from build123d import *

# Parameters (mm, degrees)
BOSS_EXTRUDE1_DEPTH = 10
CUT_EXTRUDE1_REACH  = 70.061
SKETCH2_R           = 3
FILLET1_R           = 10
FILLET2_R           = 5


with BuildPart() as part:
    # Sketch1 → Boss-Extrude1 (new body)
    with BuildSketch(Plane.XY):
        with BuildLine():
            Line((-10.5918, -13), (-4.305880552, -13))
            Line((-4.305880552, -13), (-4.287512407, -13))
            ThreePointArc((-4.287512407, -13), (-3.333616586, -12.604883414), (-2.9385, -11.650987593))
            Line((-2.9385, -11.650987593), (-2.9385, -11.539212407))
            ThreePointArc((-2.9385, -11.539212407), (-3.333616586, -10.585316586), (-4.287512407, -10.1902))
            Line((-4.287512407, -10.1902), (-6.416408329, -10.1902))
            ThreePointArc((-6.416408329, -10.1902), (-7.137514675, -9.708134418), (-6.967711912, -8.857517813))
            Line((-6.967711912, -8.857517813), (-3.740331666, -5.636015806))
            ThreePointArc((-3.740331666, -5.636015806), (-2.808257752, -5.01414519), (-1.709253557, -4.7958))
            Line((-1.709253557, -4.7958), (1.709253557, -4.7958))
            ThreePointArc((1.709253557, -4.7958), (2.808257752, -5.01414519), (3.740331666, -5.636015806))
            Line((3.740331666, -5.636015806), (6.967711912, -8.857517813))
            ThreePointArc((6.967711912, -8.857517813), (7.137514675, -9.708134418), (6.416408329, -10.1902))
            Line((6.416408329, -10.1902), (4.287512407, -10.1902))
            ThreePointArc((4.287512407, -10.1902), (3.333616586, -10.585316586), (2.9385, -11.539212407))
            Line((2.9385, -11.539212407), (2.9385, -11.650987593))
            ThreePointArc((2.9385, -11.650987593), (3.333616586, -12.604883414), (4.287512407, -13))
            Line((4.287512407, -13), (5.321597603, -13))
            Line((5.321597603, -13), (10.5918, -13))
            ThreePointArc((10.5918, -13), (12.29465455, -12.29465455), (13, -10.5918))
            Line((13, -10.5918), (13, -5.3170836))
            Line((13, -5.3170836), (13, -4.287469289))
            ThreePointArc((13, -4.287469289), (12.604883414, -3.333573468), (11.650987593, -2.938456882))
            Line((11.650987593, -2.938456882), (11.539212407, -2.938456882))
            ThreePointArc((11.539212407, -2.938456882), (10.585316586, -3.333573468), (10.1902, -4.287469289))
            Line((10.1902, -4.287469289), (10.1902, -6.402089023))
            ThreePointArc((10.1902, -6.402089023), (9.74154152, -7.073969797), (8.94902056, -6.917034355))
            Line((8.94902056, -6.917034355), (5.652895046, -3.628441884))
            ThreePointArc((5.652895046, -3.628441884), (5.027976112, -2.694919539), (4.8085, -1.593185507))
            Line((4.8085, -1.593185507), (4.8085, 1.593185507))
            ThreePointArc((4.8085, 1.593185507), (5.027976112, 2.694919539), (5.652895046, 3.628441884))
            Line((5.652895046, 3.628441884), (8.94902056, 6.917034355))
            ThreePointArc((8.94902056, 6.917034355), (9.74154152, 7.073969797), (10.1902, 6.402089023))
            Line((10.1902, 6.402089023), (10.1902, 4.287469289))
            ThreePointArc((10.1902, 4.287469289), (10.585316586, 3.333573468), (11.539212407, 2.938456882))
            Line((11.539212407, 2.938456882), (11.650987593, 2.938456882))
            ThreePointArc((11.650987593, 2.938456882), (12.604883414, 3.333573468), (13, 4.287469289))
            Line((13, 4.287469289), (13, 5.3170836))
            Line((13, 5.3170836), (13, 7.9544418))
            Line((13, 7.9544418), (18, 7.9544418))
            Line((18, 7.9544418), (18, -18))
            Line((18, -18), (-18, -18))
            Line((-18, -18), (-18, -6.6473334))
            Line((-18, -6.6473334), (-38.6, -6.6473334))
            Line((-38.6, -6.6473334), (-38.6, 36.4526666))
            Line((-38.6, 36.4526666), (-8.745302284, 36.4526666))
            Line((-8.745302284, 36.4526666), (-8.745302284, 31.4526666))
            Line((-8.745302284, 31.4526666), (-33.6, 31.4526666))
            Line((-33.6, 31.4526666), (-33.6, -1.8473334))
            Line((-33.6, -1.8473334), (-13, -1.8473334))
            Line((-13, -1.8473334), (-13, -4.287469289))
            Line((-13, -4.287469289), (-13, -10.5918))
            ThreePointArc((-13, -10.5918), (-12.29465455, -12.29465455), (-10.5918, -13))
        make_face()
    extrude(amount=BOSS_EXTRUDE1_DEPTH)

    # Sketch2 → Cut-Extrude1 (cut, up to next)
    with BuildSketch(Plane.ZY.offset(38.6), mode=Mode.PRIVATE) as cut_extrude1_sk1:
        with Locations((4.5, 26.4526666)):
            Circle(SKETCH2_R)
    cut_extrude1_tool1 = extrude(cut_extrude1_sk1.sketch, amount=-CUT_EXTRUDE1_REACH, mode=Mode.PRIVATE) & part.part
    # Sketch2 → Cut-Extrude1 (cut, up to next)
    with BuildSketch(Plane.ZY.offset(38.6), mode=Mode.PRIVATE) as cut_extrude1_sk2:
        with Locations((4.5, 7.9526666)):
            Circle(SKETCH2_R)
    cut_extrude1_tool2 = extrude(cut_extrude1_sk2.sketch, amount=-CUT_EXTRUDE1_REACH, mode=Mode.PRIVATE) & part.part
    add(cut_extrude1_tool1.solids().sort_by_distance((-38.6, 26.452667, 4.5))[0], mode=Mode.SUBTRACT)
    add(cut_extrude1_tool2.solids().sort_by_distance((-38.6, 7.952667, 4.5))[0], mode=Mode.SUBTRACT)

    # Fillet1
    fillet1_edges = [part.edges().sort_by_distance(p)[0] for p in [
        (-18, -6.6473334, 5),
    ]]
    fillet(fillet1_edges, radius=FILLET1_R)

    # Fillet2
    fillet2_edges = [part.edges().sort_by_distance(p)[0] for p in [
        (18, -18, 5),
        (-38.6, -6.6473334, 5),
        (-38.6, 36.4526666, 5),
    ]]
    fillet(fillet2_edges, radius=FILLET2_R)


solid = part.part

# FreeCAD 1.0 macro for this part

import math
import FreeCAD as App
import Part
import Sketcher

V = App.Vector
Q = App.Units.Quantity


def edges_at(feature, points):
    """Names of the edges that pass closest to the given points."""
    edges = feature.Shape.Edges
    near = lambda p: min(range(len(edges)), key=lambda i: edges[i].distToShape(Part.Vertex(*p))[0])
    return sorted({f"Edge{near(p) + 1}" for p in points})

doc = App.newDocument("Part")
body = doc.addObject("PartDesign::Body", "Body")

# Sketch on XY plane
sketch1 = body.newObject("Sketcher::SketchObject", "Sketch")
sketch1.AttachmentSupport = (doc.getObject("XY_Plane"), [""])
sketch1.MapMode = "FlatFace"
sketch1.addGeometry(Part.LineSegment(V(-4.29, -13, 0), V(-10.59, -13, 0)), False)
sketch1.addGeometry(Part.ArcOfCircle(Part.Circle(V(-10.59, -10.59, 0), V(0, 0, 1), 2.41), math.radians(-180), math.radians(-90)), False)
sketch1.addGeometry(Part.LineSegment(V(-13, -10.59, 0), V(-13, -1.85, 0)), False)
sketch1.addGeometry(Part.LineSegment(V(-13, -1.85, 0), V(-33.6, -1.85, 0)), False)
sketch1.addGeometry(Part.LineSegment(V(-33.6, -1.85, 0), V(-33.6, 31.45, 0)), False)
sketch1.addGeometry(Part.LineSegment(V(-33.6, 31.45, 0), V(-8.75, 31.45, 0)), False)
sketch1.addGeometry(Part.LineSegment(V(-8.75, 31.45, 0), V(-8.75, 36.45, 0)), False)
sketch1.addGeometry(Part.LineSegment(V(-8.75, 36.45, 0), V(-38.6, 36.45, 0)), False)
sketch1.addGeometry(Part.LineSegment(V(-38.6, 36.45, 0), V(-38.6, -6.65, 0)), False)
sketch1.addGeometry(Part.LineSegment(V(-38.6, -6.65, 0), V(-18, -6.65, 0)), False)
sketch1.addGeometry(Part.LineSegment(V(-18, -6.65, 0), V(-18, -18, 0)), False)
sketch1.addGeometry(Part.LineSegment(V(-18, -18, 0), V(18, -18, 0)), False)
sketch1.addGeometry(Part.LineSegment(V(18, -18, 0), V(18, 7.95, 0)), False)
sketch1.addGeometry(Part.LineSegment(V(18, 7.95, 0), V(13, 7.95, 0)), False)
sketch1.addGeometry(Part.LineSegment(V(13, 7.95, 0), V(13, 4.29, 0)), False)
sketch1.addGeometry(Part.ArcOfCircle(Part.Circle(V(11.65, 4.29, 0), V(0, 0, 1), 1.35), math.radians(-90), math.radians(0)), False)
sketch1.addGeometry(Part.LineSegment(V(11.65, 2.94, 0), V(11.54, 2.94, 0)), False)
sketch1.addGeometry(Part.ArcOfCircle(Part.Circle(V(11.54, 4.29, 0), V(0, 0, 1), 1.35), math.radians(180), math.radians(270)), False)
sketch1.addGeometry(Part.LineSegment(V(10.19, 4.29, 0), V(10.19, 6.4, 0)), False)
sketch1.addGeometry(Part.ArcOfCircle(Part.Circle(V(9.46, 6.4, 0), V(0, 0, 1), 0.73), math.radians(0), math.radians(135)), False)
sketch1.addGeometry(Part.LineSegment(V(8.95, 6.92, 0), V(5.65, 3.63, 0)), False)
sketch1.addGeometry(Part.ArcOfCircle(Part.Circle(V(7.68, 1.59, 0), V(0, 0, 1), 2.88), math.radians(135), math.radians(180)), False)
sketch1.addGeometry(Part.LineSegment(V(4.81, 1.59, 0), V(4.81, -1.59, 0)), False)
sketch1.addGeometry(Part.ArcOfCircle(Part.Circle(V(7.68, -1.59, 0), V(0, 0, 1), 2.88), math.radians(-180), math.radians(-135)), False)
sketch1.addGeometry(Part.LineSegment(V(5.65, -3.63, 0), V(8.95, -6.92, 0)), False)
sketch1.addGeometry(Part.ArcOfCircle(Part.Circle(V(9.46, -6.4, 0), V(0, 0, 1), 0.73), math.radians(-135), math.radians(0)), False)
sketch1.addGeometry(Part.LineSegment(V(10.19, -6.4, 0), V(10.19, -4.29, 0)), False)
sketch1.addGeometry(Part.ArcOfCircle(Part.Circle(V(11.54, -4.29, 0), V(0, 0, 1), 1.35), math.radians(90), math.radians(180)), False)
sketch1.addGeometry(Part.LineSegment(V(11.54, -2.94, 0), V(11.65, -2.94, 0)), False)
sketch1.addGeometry(Part.ArcOfCircle(Part.Circle(V(11.65, -4.29, 0), V(0, 0, 1), 1.35), math.radians(0), math.radians(90)), False)
sketch1.addGeometry(Part.LineSegment(V(13, -4.29, 0), V(13, -10.59, 0)), False)
sketch1.addGeometry(Part.ArcOfCircle(Part.Circle(V(10.59, -10.59, 0), V(0, 0, 1), 2.41), math.radians(-90), math.radians(0)), False)
sketch1.addGeometry(Part.LineSegment(V(10.59, -13, 0), V(4.29, -13, 0)), False)
sketch1.addGeometry(Part.ArcOfCircle(Part.Circle(V(4.29, -11.65, 0), V(0, 0, 1), 1.35), math.radians(180), math.radians(270)), False)
sketch1.addGeometry(Part.LineSegment(V(2.94, -11.65, 0), V(2.94, -11.54, 0)), False)
sketch1.addGeometry(Part.ArcOfCircle(Part.Circle(V(4.29, -11.54, 0), V(0, 0, 1), 1.35), math.radians(90), math.radians(180)), False)
sketch1.addGeometry(Part.LineSegment(V(4.29, -10.19, 0), V(6.42, -10.19, 0)), False)
sketch1.addGeometry(Part.ArcOfCircle(Part.Circle(V(6.42, -9.41, 0), V(0, 0, 1), 0.78), math.radians(-90), math.radians(45)), False)
sketch1.addGeometry(Part.LineSegment(V(6.97, -8.86, 0), V(3.74, -5.64, 0)), False)
sketch1.addGeometry(Part.ArcOfCircle(Part.Circle(V(1.71, -7.67, 0), V(0, 0, 1), 2.88), math.radians(45), math.radians(90)), False)
sketch1.addGeometry(Part.LineSegment(V(1.71, -4.8, 0), V(-1.71, -4.8, 0)), False)
sketch1.addGeometry(Part.ArcOfCircle(Part.Circle(V(-1.71, -7.67, 0), V(0, 0, 1), 2.88), math.radians(90), math.radians(135)), False)
sketch1.addGeometry(Part.LineSegment(V(-3.74, -5.64, 0), V(-6.97, -8.86, 0)), False)
sketch1.addGeometry(Part.ArcOfCircle(Part.Circle(V(-6.42, -9.41, 0), V(0, 0, 1), 0.78), math.radians(135), math.radians(270)), False)
sketch1.addGeometry(Part.LineSegment(V(-6.42, -10.19, 0), V(-4.29, -10.19, 0)), False)
sketch1.addGeometry(Part.ArcOfCircle(Part.Circle(V(-4.29, -11.54, 0), V(0, 0, 1), 1.35), math.radians(0), math.radians(90)), False)
sketch1.addGeometry(Part.LineSegment(V(-2.94, -11.54, 0), V(-2.94, -11.65, 0)), False)
sketch1.addGeometry(Part.ArcOfCircle(Part.Circle(V(-4.29, -11.65, 0), V(0, 0, 1), 1.35), math.radians(-90), math.radians(0)), False)
sketch1.addConstraint(Sketcher.Constraint("Tangent", 0, 2, 1, 2))
sketch1.addConstraint(Sketcher.Constraint("Tangent", 1, 1, 2, 1))
sketch1.addConstraint(Sketcher.Constraint("Coincident", 2, 2, 3, 1))
sketch1.addConstraint(Sketcher.Constraint("Coincident", 3, 2, 4, 1))
sketch1.addConstraint(Sketcher.Constraint("Coincident", 4, 2, 5, 1))
sketch1.addConstraint(Sketcher.Constraint("Coincident", 5, 2, 6, 1))
sketch1.addConstraint(Sketcher.Constraint("Coincident", 6, 2, 7, 1))
sketch1.addConstraint(Sketcher.Constraint("Coincident", 7, 2, 8, 1))
sketch1.addConstraint(Sketcher.Constraint("Coincident", 8, 2, 9, 1))
sketch1.addConstraint(Sketcher.Constraint("Coincident", 9, 2, 10, 1))
sketch1.addConstraint(Sketcher.Constraint("Coincident", 10, 2, 11, 1))
sketch1.addConstraint(Sketcher.Constraint("Coincident", 11, 2, 12, 1))
sketch1.addConstraint(Sketcher.Constraint("Coincident", 12, 2, 13, 1))
sketch1.addConstraint(Sketcher.Constraint("Coincident", 13, 2, 14, 1))
sketch1.addConstraint(Sketcher.Constraint("Tangent", 14, 2, 15, 2))
sketch1.addConstraint(Sketcher.Constraint("Tangent", 15, 1, 16, 1))
sketch1.addConstraint(Sketcher.Constraint("Tangent", 16, 2, 17, 2))
sketch1.addConstraint(Sketcher.Constraint("Tangent", 17, 1, 18, 1))
sketch1.addConstraint(Sketcher.Constraint("Tangent", 18, 2, 19, 1))
sketch1.addConstraint(Sketcher.Constraint("Tangent", 19, 2, 20, 1))
sketch1.addConstraint(Sketcher.Constraint("Tangent", 20, 2, 21, 1))
sketch1.addConstraint(Sketcher.Constraint("Tangent", 21, 2, 22, 1))
sketch1.addConstraint(Sketcher.Constraint("Tangent", 22, 2, 23, 1))
sketch1.addConstraint(Sketcher.Constraint("Tangent", 23, 2, 24, 1))
sketch1.addConstraint(Sketcher.Constraint("Tangent", 24, 2, 25, 1))
sketch1.addConstraint(Sketcher.Constraint("Tangent", 25, 2, 26, 1))
sketch1.addConstraint(Sketcher.Constraint("Tangent", 26, 2, 27, 2))
sketch1.addConstraint(Sketcher.Constraint("Tangent", 27, 1, 28, 1))
sketch1.addConstraint(Sketcher.Constraint("Tangent", 28, 2, 29, 2))
sketch1.addConstraint(Sketcher.Constraint("Tangent", 29, 1, 30, 1))
sketch1.addConstraint(Sketcher.Constraint("Tangent", 30, 2, 31, 2))
sketch1.addConstraint(Sketcher.Constraint("Tangent", 31, 1, 32, 1))
sketch1.addConstraint(Sketcher.Constraint("Tangent", 32, 2, 33, 2))
sketch1.addConstraint(Sketcher.Constraint("Tangent", 33, 1, 34, 1))
sketch1.addConstraint(Sketcher.Constraint("Tangent", 34, 2, 35, 2))
sketch1.addConstraint(Sketcher.Constraint("Tangent", 35, 1, 36, 1))
sketch1.addConstraint(Sketcher.Constraint("Tangent", 36, 2, 37, 1))
sketch1.addConstraint(Sketcher.Constraint("Tangent", 37, 2, 38, 1))
sketch1.addConstraint(Sketcher.Constraint("Tangent", 38, 2, 39, 1))
sketch1.addConstraint(Sketcher.Constraint("Tangent", 39, 2, 40, 1))
sketch1.addConstraint(Sketcher.Constraint("Tangent", 40, 2, 41, 1))
sketch1.addConstraint(Sketcher.Constraint("Tangent", 41, 2, 42, 1))
sketch1.addConstraint(Sketcher.Constraint("Tangent", 42, 2, 43, 1))
sketch1.addConstraint(Sketcher.Constraint("Tangent", 43, 2, 44, 1))
sketch1.addConstraint(Sketcher.Constraint("Tangent", 44, 2, 45, 2))
sketch1.addConstraint(Sketcher.Constraint("Tangent", 45, 1, 46, 1))
sketch1.addConstraint(Sketcher.Constraint("Tangent", 46, 2, 47, 2))
sketch1.addConstraint(Sketcher.Constraint("Tangent", 47, 1, 0, 1))
sketch1.addConstraint(Sketcher.Constraint("Horizontal", 0))
sketch1.addConstraint(Sketcher.Constraint("Vertical", 2))
sketch1.addConstraint(Sketcher.Constraint("Horizontal", 3))
sketch1.addConstraint(Sketcher.Constraint("Vertical", 4))
sketch1.addConstraint(Sketcher.Constraint("Horizontal", 5))
sketch1.addConstraint(Sketcher.Constraint("Vertical", 6))
sketch1.addConstraint(Sketcher.Constraint("Horizontal", 7))
sketch1.addConstraint(Sketcher.Constraint("Vertical", 8))
sketch1.addConstraint(Sketcher.Constraint("Horizontal", 9))
sketch1.addConstraint(Sketcher.Constraint("Vertical", 10))
sketch1.addConstraint(Sketcher.Constraint("Horizontal", 11))
sketch1.addConstraint(Sketcher.Constraint("Vertical", 12))
sketch1.addConstraint(Sketcher.Constraint("Horizontal", 13))
sketch1.addConstraint(Sketcher.Constraint("Vertical", 14))
sketch1.addConstraint(Sketcher.Constraint("Horizontal", 16))
sketch1.addConstraint(Sketcher.Constraint("Vertical", 18))
sketch1.addConstraint(Sketcher.Constraint("Vertical", 22))
sketch1.addConstraint(Sketcher.Constraint("Vertical", 26))
sketch1.addConstraint(Sketcher.Constraint("Horizontal", 28))
sketch1.addConstraint(Sketcher.Constraint("Vertical", 30))
sketch1.addConstraint(Sketcher.Constraint("Horizontal", 32))
sketch1.addConstraint(Sketcher.Constraint("Vertical", 34))
sketch1.addConstraint(Sketcher.Constraint("Horizontal", 36))
sketch1.addConstraint(Sketcher.Constraint("Horizontal", 40))
sketch1.addConstraint(Sketcher.Constraint("Horizontal", 44))
sketch1.addConstraint(Sketcher.Constraint("Vertical", 46))
sketch1.addConstraint(Sketcher.Constraint("Equal", 15, 17))
sketch1.addConstraint(Sketcher.Constraint("Equal", 21, 23))
sketch1.addConstraint(Sketcher.Constraint("Equal", 19, 25))
sketch1.addConstraint(Sketcher.Constraint("Equal", 17, 27))
sketch1.addConstraint(Sketcher.Constraint("Equal", 27, 29))
sketch1.addConstraint(Sketcher.Constraint("Equal", 1, 31))
sketch1.addConstraint(Sketcher.Constraint("Equal", 29, 33))
sketch1.addConstraint(Sketcher.Constraint("Equal", 33, 35))
sketch1.addConstraint(Sketcher.Constraint("Equal", 23, 39))
sketch1.addConstraint(Sketcher.Constraint("Equal", 39, 41))
sketch1.addConstraint(Sketcher.Constraint("Equal", 37, 43))
sketch1.addConstraint(Sketcher.Constraint("Equal", 35, 45))
sketch1.addConstraint(Sketcher.Constraint("Equal", 45, 47))
sketch1.addConstraint(Sketcher.Constraint("Symmetric", 1, 3, 31, 3, -2))
sketch1.addConstraint(Sketcher.Constraint("Symmetric", 37, 3, 43, 3, -2))
sketch1.addConstraint(Sketcher.Constraint("Symmetric", 19, 3, 25, 3, -1))
sketch1.addConstraint(Sketcher.Constraint("Symmetric", 15, 3, 29, 3, -1))
sketch1.addConstraint(Sketcher.Constraint("Horizontal", 38, 2, 41, 2))
sketch1.addConstraint(Sketcher.Constraint("Vertical", 20, 2, 23, 2))
sketch1.addConstraint(Sketcher.Constraint("Equal", 3, 9))
sketch1.addConstraint(Sketcher.Constraint("Equal", 0, 32))
sketch1.addConstraint(Sketcher.Constraint("Equal", 13, 6))
sketch1.addConstraint(Sketcher.Constraint("Equal", 28, 34))
sketch1.addConstraint(Sketcher.Constraint("DistanceX", 11, 1, 11, 2, Q("36 mm")))
sketch1.addConstraint(Sketcher.Constraint("DistanceX", 13, 2, 13, 1, Q("5 mm")))
sketch1.addConstraint(Sketcher.Constraint("DistanceX", 3, 2, 3, 1, Q("20.6 mm")))
sketch1.addConstraint(Sketcher.Constraint("DistanceY", 4, 1, 4, 2, Q("33.3 mm")))
sketch1.addConstraint(Sketcher.Constraint("DistanceY", 8, 2, 8, 1, Q("43.1 mm")))
sketch1.addConstraint(Sketcher.Constraint("DistanceY", 0, 2, -1, 1, Q("13 mm")))
sketch1.addConstraint(Sketcher.Constraint("DistanceX", 1, 1, -1, 1, Q("13 mm")))
sketch1.addConstraint(Sketcher.Constraint("DistanceY", 10, 2, -1, 1, Q("18 mm")))
sketch1.addConstraint(Sketcher.Constraint("Radius", 21, Q("2.875 mm")))
sketch1.addConstraint(Sketcher.Constraint("Radius", 1, Q("2.4082 mm")))
sketch1.addConstraint(Sketcher.Constraint("Radius", 19, Q("0.727411 mm")))
sketch1.addConstraint(Sketcher.Constraint("Radius", 15, Q("1.349012 mm")))
sketch1.addConstraint(Sketcher.Constraint("Radius", 37, Q("0.780373 mm")))
sketch1.addConstraint(Sketcher.Constraint("Distance", 20, Q("4.656102 mm")))
sketch1.addConstraint(Sketcher.Constraint("DistanceY", 12, 1, 12, 2, Q("25.954442 mm")))
sketch1.addConstraint(Sketcher.Constraint("DistanceY", 18, 1, 18, 2, Q("2.11462 mm")))
sketch1.addConstraint(Sketcher.Constraint("DistanceY", 22, 2, 22, 1, Q("3.186371 mm")))
sketch1.addConstraint(Sketcher.Constraint("DistanceY", 30, 2, 30, 1, Q("6.304331 mm")))
sketch1.addConstraint(Sketcher.Constraint("DistanceX", -1, 1, 21, 3, Q("7.6835 mm")))
sketch1.addConstraint(Sketcher.Constraint("DistanceY", 39, 3, -1, 1, Q("7.6708 mm")))
sketch1.addConstraint(Sketcher.Constraint("DistanceX", -1, 1, 33, 1, Q("2.9385 mm")))
sketch1.addConstraint(Sketcher.Constraint("Distance", 38, Q("4.56005 mm")))
sketch1.addConstraint(Sketcher.Constraint("DistanceX", 5, 1, 5, 2, Q("24.854698 mm")))
sketch1.addConstraint(Sketcher.Constraint("DistanceX", 36, 1, 36, 2, Q("2.128896 mm")))
sketch1.addConstraint(Sketcher.Constraint("DistanceY", 2, 1, 2, 2, Q("8.744467 mm")))
pad1 = body.newObject("PartDesign::Pad", "Pad")
pad1.Profile = sketch1
pad1.Length = 10

# Sketch on YZ plane
sketch2 = body.newObject("Sketcher::SketchObject", "Sketch001")
sketch2.AttachmentSupport = (doc.getObject("YZ_Plane"), [""])
sketch2.MapMode = "FlatFace"
sketch2.AttachmentOffset = App.Placement(V(0, 0, -38.6), App.Rotation())
sketch2.addGeometry(Part.Circle(V(26.5, 4.5, 0), V(0, 0, 1), 3), False)
sketch2.addConstraint(Sketcher.Constraint("Diameter", 0, Q("6 mm")))
sketch2.addConstraint(Sketcher.Constraint("DistanceY", -1, 1, 0, 3, Q("4.5 mm")))
sketch2.addConstraint(Sketcher.Constraint("DistanceX", -1, 1, 0, 3, Q("26.452667 mm")))
pocket1 = body.newObject("PartDesign::Pocket", "Pocket")
pocket1.Profile = sketch2
pocket1.Type = "UpToFirst"
pocket1.Reversed = True

# Sketch on YZ plane
sketch3 = body.newObject("Sketcher::SketchObject", "Sketch002")
sketch3.AttachmentSupport = (doc.getObject("YZ_Plane"), [""])
sketch3.MapMode = "FlatFace"
sketch3.AttachmentOffset = App.Placement(V(0, 0, -38.6), App.Rotation())
sketch3.addGeometry(Part.Circle(V(8, 4.5, 0), V(0, 0, 1), 3), False)
sketch3.addConstraint(Sketcher.Constraint("Diameter", 0, Q("6 mm")))
sketch3.addConstraint(Sketcher.Constraint("DistanceY", -1, 1, 0, 3, Q("4.5 mm")))
sketch3.addConstraint(Sketcher.Constraint("DistanceX", -1, 1, 0, 3, Q("7.952667 mm")))
pocket2 = body.newObject("PartDesign::Pocket", "Pocket001")
pocket2.Profile = sketch3
pocket2.Type = "UpToFirst"
pocket2.Reversed = True
doc.recompute()

fillet = body.newObject("PartDesign::Fillet", "Fillet")
fillet.Base = (pocket2, edges_at(pocket2, [(-18, -6.647, 5)]))
fillet.Radius = 10
doc.recompute()

fillet2 = body.newObject("PartDesign::Fillet", "Fillet001")
fillet2.Base = (fillet, edges_at(fillet, [(18, -18, 5), (-38.6, -6.647, 5), (-38.6, 36.453, 5)]))
fillet2.Radius = 5

doc.recompute()
